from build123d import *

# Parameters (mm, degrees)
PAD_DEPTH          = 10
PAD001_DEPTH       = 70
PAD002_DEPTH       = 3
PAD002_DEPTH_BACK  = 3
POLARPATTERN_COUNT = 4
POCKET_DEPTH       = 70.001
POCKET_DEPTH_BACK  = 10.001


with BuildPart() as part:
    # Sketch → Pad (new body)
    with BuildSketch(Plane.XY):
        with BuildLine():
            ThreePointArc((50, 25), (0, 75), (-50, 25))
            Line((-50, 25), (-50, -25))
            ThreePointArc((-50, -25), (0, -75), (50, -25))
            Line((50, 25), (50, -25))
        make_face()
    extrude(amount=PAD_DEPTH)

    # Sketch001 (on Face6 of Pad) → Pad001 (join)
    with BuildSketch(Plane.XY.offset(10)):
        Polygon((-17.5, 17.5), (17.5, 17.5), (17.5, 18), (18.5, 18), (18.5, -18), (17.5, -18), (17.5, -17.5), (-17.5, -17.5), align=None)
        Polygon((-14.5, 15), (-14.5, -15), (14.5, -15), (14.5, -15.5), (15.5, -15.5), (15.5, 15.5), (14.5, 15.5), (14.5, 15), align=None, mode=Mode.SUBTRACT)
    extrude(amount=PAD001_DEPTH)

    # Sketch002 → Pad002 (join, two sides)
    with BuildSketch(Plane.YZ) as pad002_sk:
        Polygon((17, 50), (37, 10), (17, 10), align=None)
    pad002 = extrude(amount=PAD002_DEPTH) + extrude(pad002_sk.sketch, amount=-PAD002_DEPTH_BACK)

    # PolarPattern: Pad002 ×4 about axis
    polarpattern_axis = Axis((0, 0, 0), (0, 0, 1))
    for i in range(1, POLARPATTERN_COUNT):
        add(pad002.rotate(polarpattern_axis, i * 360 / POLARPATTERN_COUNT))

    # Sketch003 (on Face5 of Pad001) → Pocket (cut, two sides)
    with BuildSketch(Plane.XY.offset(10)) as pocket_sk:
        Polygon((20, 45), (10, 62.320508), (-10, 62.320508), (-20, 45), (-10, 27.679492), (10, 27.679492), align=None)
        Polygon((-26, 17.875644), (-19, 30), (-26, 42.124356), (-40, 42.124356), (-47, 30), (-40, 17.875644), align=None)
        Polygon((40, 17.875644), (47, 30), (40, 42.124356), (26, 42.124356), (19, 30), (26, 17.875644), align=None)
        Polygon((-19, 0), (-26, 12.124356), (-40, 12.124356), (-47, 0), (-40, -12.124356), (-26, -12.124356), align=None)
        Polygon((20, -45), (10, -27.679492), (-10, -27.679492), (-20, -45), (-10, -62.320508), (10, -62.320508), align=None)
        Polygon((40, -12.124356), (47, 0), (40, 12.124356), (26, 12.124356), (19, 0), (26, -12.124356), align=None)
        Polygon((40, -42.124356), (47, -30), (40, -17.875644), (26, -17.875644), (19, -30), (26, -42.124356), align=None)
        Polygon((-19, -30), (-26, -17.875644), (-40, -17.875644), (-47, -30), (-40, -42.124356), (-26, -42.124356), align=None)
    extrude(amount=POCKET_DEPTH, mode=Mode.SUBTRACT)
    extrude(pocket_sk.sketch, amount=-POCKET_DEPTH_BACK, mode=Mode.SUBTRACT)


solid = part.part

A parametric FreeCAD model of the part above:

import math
import FreeCAD as App
import Part
import Sketcher

V = App.Vector
Q = App.Units.Quantity

doc = App.newDocument("Part")
body = doc.addObject("PartDesign::Body", "Body")

# Sketch on XY plane
sketch1 = doc.addObject("Sketcher::SketchObject", "Sketch")
body.addObject(sketch1)
sketch1.AttachmentSupport = (doc.XY_Plane, [""])
sketch1.MapMode = "FlatFace"
sketch1.addGeometry([
    Part.ArcOfCircle(Part.Circle(V(0, 25, 0), V(0, 0, 1), 50), math.radians(0), math.radians(180)),
    Part.LineSegment(V(-50, 25, 0), V(-50, -25, 0)),
    Part.ArcOfCircle(Part.Circle(V(0, -25, 0), V(0, 0, 1), 50), math.radians(180), math.radians(360)),
    Part.LineSegment(V(50, -25, 0), V(50, 25, 0)),
], False)
sketch1.addConstraint([
    Sketcher.Constraint("Tangent", 0, 2, 1, 1),
    Sketcher.Constraint("Tangent", 1, 2, 2, 1),
    Sketcher.Constraint("Tangent", 2, 2, 3, 1),
    Sketcher.Constraint("Tangent", 3, 2, 0, 1),
    Sketcher.Constraint("Vertical", 1),
    Sketcher.Constraint("Vertical", 3),
    Sketcher.Constraint("Symmetric", 0, 3, 2, 3, -1, 1),
    Sketcher.Constraint("Radius", 0, Q("50 mm")),
    Sketcher.Constraint("DistanceY", 1, 2, 1, 1, Q("50 mm")),
])
pad1 = doc.addObject("PartDesign::Pad", "Pad")
body.addObject(pad1)
pad1.Profile = sketch1
pad1.Length = 10

# Sketch on XY plane
sketch2 = doc.addObject("Sketcher::SketchObject", "Sketch001")
body.addObject(sketch2)
sketch2.AttachmentSupport = (doc.XY_Plane, [""])
sketch2.MapMode = "FlatFace"
sketch2.AttachmentOffset = App.Placement(V(0, 0, 10), App.Rotation())
sketch2.addGeometry([
    Part.LineSegment(V(17.5, 17.5, 0), V(-17.5, 17.5, 0)),  # 0
    Part.LineSegment(V(-17.5, 17.5, 0), V(-17.5, -17.5, 0)),  # 1
    Part.LineSegment(V(-17.5, -17.5, 0), V(17.5, -17.5, 0)),  # 2
    Part.LineSegment(V(17.5, -17.5, 0), V(17.5, -18, 0)),  # 3
    Part.LineSegment(V(17.5, -18, 0), V(18.5, -18, 0)),  # 4
    Part.LineSegment(V(18.5, -18, 0), V(18.5, 18, 0)),  # 5
    Part.LineSegment(V(18.5, 18, 0), V(17.5, 18, 0)),  # 6
    Part.LineSegment(V(17.5, 18, 0), V(17.5, 17.5, 0)),  # 7
    Part.LineSegment(V(-14.5, 15, 0), V(14.5, 15, 0)),  # 8
    Part.LineSegment(V(14.5, 15, 0), V(14.5, 15.5, 0)),  # 9
    Part.LineSegment(V(14.5, 15.5, 0), V(15.5, 15.5, 0)),  # 10
    Part.LineSegment(V(15.5, 15.5, 0), V(15.5, -15.5, 0)),  # 11
    Part.LineSegment(V(15.5, -15.5, 0), V(14.5, -15.5, 0)),  # 12
    Part.LineSegment(V(14.5, -15.5, 0), V(14.5, -15, 0)),  # 13
    Part.LineSegment(V(14.5, -15, 0), V(-14.5, -15, 0)),  # 14
    Part.LineSegment(V(-14.5, -15, 0), V(-14.5, 15, 0)),  # 15
], False)
sketch2.addConstraint([
    Sketcher.Constraint("Coincident", 0, 2, 1, 1),
    Sketcher.Constraint("Coincident", 1, 2, 2, 1),
    Sketcher.Constraint("Coincident", 2, 2, 3, 1),
    Sketcher.Constraint("Coincident", 3, 2, 4, 1),
    Sketcher.Constraint("Coincident", 4, 2, 5, 1),
    Sketcher.Constraint("Coincident", 5, 2, 6, 1),
    Sketcher.Constraint("Coincident", 6, 2, 7, 1),
    Sketcher.Constraint("Coincident", 7, 2, 0, 1),
    Sketcher.Constraint("Coincident", 8, 2, 9, 1),
    Sketcher.Constraint("Coincident", 9, 2, 10, 1),
    Sketcher.Constraint("Coincident", 10, 2, 11, 1),
    Sketcher.Constraint("Coincident", 11, 2, 12, 1),
    Sketcher.Constraint("Coincident", 12, 2, 13, 1),
    Sketcher.Constraint("Coincident", 13, 2, 14, 1),
    Sketcher.Constraint("Coincident", 14, 2, 15, 1),
    Sketcher.Constraint("Coincident", 15, 2, 8, 1),
    Sketcher.Constraint("Horizontal", 0),
    Sketcher.Constraint("Vertical", 1),
    Sketcher.Constraint("Horizontal", 2),
    Sketcher.Constraint("Vertical", 3),
    Sketcher.Constraint("Horizontal", 4),
    Sketcher.Constraint("Vertical", 5),
    Sketcher.Constraint("Horizontal", 6),
    Sketcher.Constraint("Vertical", 7),
    Sketcher.Constraint("Horizontal", 8),
    Sketcher.Constraint("Vertical", 9),
    Sketcher.Constraint("Horizontal", 10),
    Sketcher.Constraint("Vertical", 11),
    Sketcher.Constraint("Horizontal", 12),
    Sketcher.Constraint("Vertical", 13),
    Sketcher.Constraint("Horizontal", 14),
    Sketcher.Constraint("Vertical", 15),
    Sketcher.Constraint("Symmetric", 0, 2, 2, 2, -1, 1),
    Sketcher.Constraint("Symmetric", 8, 2, 14, 2, -1, 1),
    Sketcher.Constraint("Symmetric", 3, 2, 6, 2, -1),
    Sketcher.Constraint("Symmetric", 9, 2, 12, 2, -1),
    Sketcher.Constraint("Equal", 6, 10),
    Sketcher.Constraint("Equal", 2, 1),
    Sketcher.Constraint("Equal", 7, 9),
    Sketcher.Constraint("DistanceX", 0, 2, 0, 1, Q("35 mm")),
    Sketcher.Constraint("DistanceX", 4, 1, 4, 2, Q("1 mm")),
    Sketcher.Constraint("DistanceX", 8, 1, 8, 2, Q("29 mm")),
    Sketcher.Constraint("DistanceY", 5, 1, 5, 2, Q("36 mm")),
    Sketcher.Constraint("DistanceY", 11, 2, 11, 1, Q("31 mm")),
])
pad2 = doc.addObject("PartDesign::Pad", "Pad001")
body.addObject(pad2)
pad2.Profile = sketch2
pad2.Length = 70

# Sketch on YZ plane
sketch3 = doc.addObject("Sketcher::SketchObject", "Sketch002")
body.addObject(sketch3)
sketch3.AttachmentSupport = (doc.YZ_Plane, [""])
sketch3.MapMode = "FlatFace"
sketch3.addGeometry([
    Part.LineSegment(V(37, 10, 0), V(17, 50, 0)),
    Part.LineSegment(V(17, 50, 0), V(17, 10, 0)),
    Part.LineSegment(V(17, 10, 0), V(37, 10, 0)),
], False)
sketch3.addConstraint([
    Sketcher.Constraint("Coincident", 0, 2, 1, 1),
    Sketcher.Constraint("Coincident", 1, 2, 2, 1),
    Sketcher.Constraint("Coincident", 2, 2, 0, 1),
    Sketcher.Constraint("Vertical", 1),
    Sketcher.Constraint("Horizontal", 2),
    Sketcher.Constraint("DistanceX", 2, 1, 2, 2, Q("20 mm")),
    Sketcher.Constraint("DistanceY", 1, 2, 1, 1, Q("40 mm")),
    Sketcher.Constraint("DistanceX", -1, 1, 0, 2, Q("17 mm")),
    Sketcher.Constraint("DistanceY", -1, 1, 0, 2, Q("50 mm")),
])
pad3 = doc.addObject("PartDesign::Pad", "Pad002")
body.addObject(pad3)
pad3.Profile = sketch3
pad3.Type = "TwoLengths"
pad3.Length = 3
pad3.Length2 = 3
doc.recompute()

polarpattern = doc.addObject("PartDesign::PolarPattern", "PolarPattern")
body.addObject(polarpattern)
polarpattern.Originals = [pad3]
polarpattern.Axis = (doc.Z_Axis, [""])
polarpattern.Angle = 360
polarpattern.Occurrences = 4
body.Tip = polarpattern

# Sketch on XY plane
sketch4 = doc.addObject("Sketcher::SketchObject", "Sketch003")
body.addObject(sketch4)
sketch4.AttachmentSupport = (doc.XY_Plane, [""])
sketch4.MapMode = "FlatFace"
sketch4.AttachmentOffset = App.Placement(V(0, 0, 10), App.Rotation())
sketch4.addGeometry([
    Part.LineSegment(V(20, 45, 0), V(10, 62.320508, 0)),  # 0
    Part.LineSegment(V(10, 62.320508, 0), V(-10, 62.320508, 0)),  # 1
    Part.LineSegment(V(-10, 62.320508, 0), V(-20, 45, 0)),  # 2
    Part.LineSegment(V(-20, 45, 0), V(-10, 27.679492, 0)),  # 3
    Part.LineSegment(V(-10, 27.679492, 0), V(10, 27.679492, 0)),  # 4
    Part.LineSegment(V(10, 27.679492, 0), V(20, 45, 0)),  # 5
    Part.LineSegment(V(-26, 17.875644, 0), V(-19, 30, 0)),  # 6
    Part.LineSegment(V(-19, 30, 0), V(-26, 42.124356, 0)),  # 7
    Part.LineSegment(V(-26, 42.124356, 0), V(-40, 42.124356, 0)),  # 8
    Part.LineSegment(V(-40, 42.124356, 0), V(-47, 30, 0)),  # 9
    Part.LineSegment(V(-47, 30, 0), V(-40, 17.875644, 0)),  # 10
    Part.LineSegment(V(-40, 17.875644, 0), V(-26, 17.875644, 0)),  # 11
    Part.LineSegment(V(40, 17.875644, 0), V(47, 30, 0)),  # 12
    Part.LineSegment(V(47, 30, 0), V(40, 42.124356, 0)),  # 13
    Part.LineSegment(V(40, 42.124356, 0), V(26, 42.124356, 0)),  # 14
    Part.LineSegment(V(26, 42.124356, 0), V(19, 30, 0)),  # 15
    Part.LineSegment(V(19, 30, 0), V(26, 17.875644, 0)),  # 16
    Part.LineSegment(V(26, 17.875644, 0), V(40, 17.875644, 0)),  # 17
    Part.LineSegment(V(-19, 0, 0), V(-26, 12.124356, 0)),  # 18
    Part.LineSegment(V(-26, 12.124356, 0), V(-40, 12.124356, 0)),  # 19
    Part.LineSegment(V(-40, 12.124356, 0), V(-47, 0, 0)),  # 20
    Part.LineSegment(V(-47, 0, 0), V(-40, -12.124356, 0)),  # 21
    Part.LineSegment(V(-40, -12.124356, 0), V(-26, -12.124356, 0)),  # 22
    Part.LineSegment(V(-26, -12.124356, 0), V(-19, 0, 0)),  # 23
    Part.LineSegment(V(20, -45, 0), V(10, -27.679492, 0)),  # 24
    Part.LineSegment(V(10, -27.679492, 0), V(-10, -27.679492, 0)),  # 25
    Part.LineSegment(V(-10, -27.679492, 0), V(-20, -45, 0)),  # 26
    Part.LineSegment(V(-20, -45, 0), V(-10, -62.320508, 0)),  # 27
    Part.LineSegment(V(-10, -62.320508, 0), V(10, -62.320508, 0)),  # 28
    Part.LineSegment(V(10, -62.320508, 0), V(20, -45, 0)),  # 29
    Part.LineSegment(V(40, -12.124356, 0), V(47, 0, 0)),  # 30
    Part.LineSegment(V(47, 0, 0), V(40, 12.124356, 0)),  # 31
    Part.LineSegment(V(40, 12.124356, 0), V(26, 12.124356, 0)),  # 32
    Part.LineSegment(V(26, 12.124356, 0), V(19, 0, 0)),  # 33
    Part.LineSegment(V(19, 0, 0), V(26, -12.124356, 0)),  # 34
    Part.LineSegment(V(26, -12.124356, 0), V(40, -12.124356, 0)),  # 35
    Part.LineSegment(V(40, -42.124356, 0), V(47, -30, 0)),  # 36
    Part.LineSegment(V(47, -30, 0), V(40, -17.875644, 0)),  # 37
    Part.LineSegment(V(40, -17.875644, 0), V(26, -17.875644, 0)),  # 38
    Part.LineSegment(V(26, -17.875644, 0), V(19, -30, 0)),  # 39
    Part.LineSegment(V(19, -30, 0), V(26, -42.124356, 0)),  # 40
    Part.LineSegment(V(26, -42.124356, 0), V(40, -42.124356, 0)),  # 41
    Part.LineSegment(V(-19, -30, 0), V(-26, -17.875644, 0)),  # 42
    Part.LineSegment(V(-26, -17.875644, 0), V(-40, -17.875644, 0)),  # 43
    Part.LineSegment(V(-40, -17.875644, 0), V(-47, -30, 0)),  # 44
    Part.LineSegment(V(-47, -30, 0), V(-40, -42.124356, 0)),  # 45
    Part.LineSegment(V(-40, -42.124356, 0), V(-26, -42.124356, 0)),  # 46
    Part.LineSegment(V(-26, -42.124356, 0), V(-19, -30, 0)),  # 47
], False)
sketch4.addConstraint([
    Sketcher.Constraint("Coincident", 0, 2, 1, 1),
    Sketcher.Constraint("Coincident", 1, 2, 2, 1),
    Sketcher.Constraint("Coincident", 2, 2, 3, 1),
    Sketcher.Constraint("Coincident", 3, 2, 4, 1),
    Sketcher.Constraint("Coincident", 4, 2, 5, 1),
    Sketcher.Constraint("Coincident", 5, 2, 0, 1),
    Sketcher.Constraint("Coincident", 6, 2, 7, 1),
    Sketcher.Constraint("Coincident", 7, 2, 8, 1),
    Sketcher.Constraint("Coincident", 8, 2, 9, 1),
    Sketcher.Constraint("Coincident", 9, 2, 10, 1),
    Sketcher.Constraint("Coincident", 10, 2, 11, 1),
    Sketcher.Constraint("Coincident", 11, 2, 6, 1),
    Sketcher.Constraint("Coincident", 12, 2, 13, 1),
    Sketcher.Constraint("Coincident", 13, 2, 14, 1),
    Sketcher.Constraint("Coincident", 14, 2, 15, 1),
    Sketcher.Constraint("Coincident", 15, 2, 16, 1),
    Sketcher.Constraint("Coincident", 16, 2, 17, 1),
    Sketcher.Constraint("Coincident", 17, 2, 12, 1),
    Sketcher.Constraint("Coincident", 18, 2, 19, 1),
    Sketcher.Constraint("Coincident", 19, 2, 20, 1),
    Sketcher.Constraint("Coincident", 20, 2, 21, 1),
    Sketcher.Constraint("Coincident", 21, 2, 22, 1),
    Sketcher.Constraint("Coincident", 22, 2, 23, 1),
    Sketcher.Constraint("Coincident", 23, 2, 18, 1),
    Sketcher.Constraint("Coincident", 24, 2, 25, 1),
    Sketcher.Constraint("Coincident", 25, 2, 26, 1),
    Sketcher.Constraint("Coincident", 26, 2, 27, 1),
    Sketcher.Constraint("Coincident", 27, 2, 28, 1),
    Sketcher.Constraint("Coincident", 28, 2, 29, 1),
    Sketcher.Constraint("Coincident", 29, 2, 24, 1),
    Sketcher.Constraint("Coincident", 30, 2, 31, 1),
    Sketcher.Constraint("Coincident", 31, 2, 32, 1),
    Sketcher.Constraint("Coincident", 32, 2, 33, 1),
    Sketcher.Constraint("Coincident", 33, 2, 34, 1),
    Sketcher.Constraint("Coincident", 34, 2, 35, 1),
    Sketcher.Constraint("Coincident", 35, 2, 30, 1),
    Sketcher.Constraint("Coincident", 36, 2, 37, 1),
    Sketcher.Constraint("Coincident", 37, 2, 38, 1),
    Sketcher.Constraint("Coincident", 38, 2, 39, 1),
    Sketcher.Constraint("Coincident", 39, 2, 40, 1),
    Sketcher.Constraint("Coincident", 40, 2, 41, 1),
    Sketcher.Constraint("Coincident", 41, 2, 36, 1),
    Sketcher.Constraint("Coincident", 42, 2, 43, 1),
    Sketcher.Constraint("Coincident", 43, 2, 44, 1),
    Sketcher.Constraint("Coincident", 44, 2, 45, 1),
    Sketcher.Constraint("Coincident", 45, 2, 46, 1),
    Sketcher.Constraint("Coincident", 46, 2, 47, 1),
    Sketcher.Constraint("Coincident", 47, 2, 42, 1),
    Sketcher.Constraint("Horizontal", 1),
    Sketcher.Constraint("Horizontal", 4),
    Sketcher.Constraint("Horizontal", 8),
    Sketcher.Constraint("Horizontal", 11),
    Sketcher.Constraint("Horizontal", 14),
    Sketcher.Constraint("Horizontal", 17),
    Sketcher.Constraint("Horizontal", 19),
    Sketcher.Constraint("Horizontal", 22),
    Sketcher.Constraint("Horizontal", 25),
    Sketcher.Constraint("Horizontal", 28),
    Sketcher.Constraint("Horizontal", 32),
    Sketcher.Constraint("Horizontal", 35),
    Sketcher.Constraint("Horizontal", 38),
    Sketcher.Constraint("Horizontal", 41),
    Sketcher.Constraint("Horizontal", 43),
    Sketcher.Constraint("Horizontal", 46),
    Sketcher.Constraint("Symmetric", 3, 2, 24, 2, -1, 1),
    Sketcher.Constraint("Symmetric", 5, 2, 26, 2, -1, 1),
    Sketcher.Constraint("Symmetric", 0, 2, 27, 2, -1, 1),
    Sketcher.Constraint("Symmetric", 2, 2, 29, 2, -1, 1),
    Sketcher.Constraint("Symmetric", 20, 2, 30, 2, -1, 1),
    Sketcher.Constraint("Symmetric", 21, 2, 31, 2, -1, 1),
    Sketcher.Constraint("Symmetric", 23, 2, 33, 2, -1, 1),
    Sketcher.Constraint("Symmetric", 18, 2, 34, 2, -1, 1),
    Sketcher.Constraint("Symmetric", 9, 2, 36, 2, -1, 1),
    Sketcher.Constraint("Symmetric", 10, 2, 37, 2, -1, 1),
    Sketcher.Constraint("Symmetric", 6, 2, 39, 2, -1, 1),
    Sketcher.Constraint("Symmetric", 7, 2, 40, 2, -1, 1),
    Sketcher.Constraint("Symmetric", 16, 2, 42, 2, -1, 1),
    Sketcher.Constraint("Symmetric", 12, 2, 44, 2, -1, 1),
    Sketcher.Constraint("Symmetric", 13, 2, 45, 2, -1, 1),
    Sketcher.Constraint("Symmetric", 15, 2, 47, 2, -1, 1),
    Sketcher.Constraint("Symmetric", 2, 2, 5, 2, -2),
    Sketcher.Constraint("Symmetric", 9, 2, 12, 2, -2),
    Sketcher.Constraint("Symmetric", 8, 2, 13, 2, -2),
    Sketcher.Constraint("Symmetric", 6, 2, 15, 2, -2),
    Sketcher.Constraint("Symmetric", 11, 2, 16, 2, -2),
    Sketcher.Constraint("Symmetric", 19, 2, 31, 2, -2),
    Sketcher.Constraint("PointOnObject", 20, 2, -1),
    Sketcher.Constraint("PointOnObject", 23, 2, -1),
    Sketcher.Constraint("Parallel", 0, 3),
    Sketcher.Constraint("Parallel", 2, 5),
    Sketcher.Constraint("Parallel", 5, 6),
    Sketcher.Constraint("Parallel", 3, 7),
    Sketcher.Constraint("Parallel", 6, 9),
    Sketcher.Constraint("Parallel", 7, 10),
    Sketcher.Constraint("Parallel", 9, 12),
    Sketcher.Constraint("Parallel", 10, 13),
    Sketcher.Constraint("Parallel", 12, 15),
    Sketcher.Constraint("Parallel", 16, 18),
    Sketcher.Constraint("Parallel", 15, 20),
    Sketcher.Constraint("Parallel", 20, 23),
    Sketcher.Constraint("Parallel", 23, 26),
    Sketcher.Constraint("Parallel", 26, 29),
    Sketcher.Constraint("Parallel", 29, 30),
    Sketcher.Constraint("Parallel", 30, 33),
    Sketcher.Constraint("Parallel", 33, 36),
    Sketcher.Constraint("Parallel", 36, 39),
    Sketcher.Constraint("Parallel", 39, 44),
    Sketcher.Constraint("Parallel", 44, 47),
    Sketcher.Constraint("Horizontal", 6, 2, 9, 2),
    Sketcher.Constraint("Vertical", 1, 2, 3, 2),
    Sketcher.Constraint("Vertical", 8, 2, 10, 2),
    Sketcher.Constraint("Vertical", 11, 2, 18, 2),
    Sketcher.Constraint("Vertical", 10, 2, 19, 2),
    Sketcher.Constraint("Vertical", 9, 2, 20, 2),
    Sketcher.Constraint("DistanceX", 1, 2, 1, 1, Q("20 mm")),
    Sketcher.Constraint("DistanceX", 8, 2, 8, 1, Q("14 mm")),
    Sketcher.Constraint("Angle", 0, Q("120 deg")),
    Sketcher.Constraint("Distance", 0, Q("20 mm")),
    Sketcher.Constraint("Distance", 6, Q("14 mm")),
    Sketcher.Constraint("DistanceY", -1, 1, 2, 2, Q("45 mm")),
    Sketcher.Constraint("DistanceX", 6, 2, -1, 1, Q("19 mm")),
    Sketcher.Constraint("DistanceY", -1, 1, 6, 2, Q("30 mm")),
])
pocket1 = doc.addObject("PartDesign::Pocket", "Pocket")
body.addObject(pocket1)
pocket1.Profile = sketch4
pocket1.Type = "ThroughAll"
pocket1.Midplane = True

doc.recompute()
